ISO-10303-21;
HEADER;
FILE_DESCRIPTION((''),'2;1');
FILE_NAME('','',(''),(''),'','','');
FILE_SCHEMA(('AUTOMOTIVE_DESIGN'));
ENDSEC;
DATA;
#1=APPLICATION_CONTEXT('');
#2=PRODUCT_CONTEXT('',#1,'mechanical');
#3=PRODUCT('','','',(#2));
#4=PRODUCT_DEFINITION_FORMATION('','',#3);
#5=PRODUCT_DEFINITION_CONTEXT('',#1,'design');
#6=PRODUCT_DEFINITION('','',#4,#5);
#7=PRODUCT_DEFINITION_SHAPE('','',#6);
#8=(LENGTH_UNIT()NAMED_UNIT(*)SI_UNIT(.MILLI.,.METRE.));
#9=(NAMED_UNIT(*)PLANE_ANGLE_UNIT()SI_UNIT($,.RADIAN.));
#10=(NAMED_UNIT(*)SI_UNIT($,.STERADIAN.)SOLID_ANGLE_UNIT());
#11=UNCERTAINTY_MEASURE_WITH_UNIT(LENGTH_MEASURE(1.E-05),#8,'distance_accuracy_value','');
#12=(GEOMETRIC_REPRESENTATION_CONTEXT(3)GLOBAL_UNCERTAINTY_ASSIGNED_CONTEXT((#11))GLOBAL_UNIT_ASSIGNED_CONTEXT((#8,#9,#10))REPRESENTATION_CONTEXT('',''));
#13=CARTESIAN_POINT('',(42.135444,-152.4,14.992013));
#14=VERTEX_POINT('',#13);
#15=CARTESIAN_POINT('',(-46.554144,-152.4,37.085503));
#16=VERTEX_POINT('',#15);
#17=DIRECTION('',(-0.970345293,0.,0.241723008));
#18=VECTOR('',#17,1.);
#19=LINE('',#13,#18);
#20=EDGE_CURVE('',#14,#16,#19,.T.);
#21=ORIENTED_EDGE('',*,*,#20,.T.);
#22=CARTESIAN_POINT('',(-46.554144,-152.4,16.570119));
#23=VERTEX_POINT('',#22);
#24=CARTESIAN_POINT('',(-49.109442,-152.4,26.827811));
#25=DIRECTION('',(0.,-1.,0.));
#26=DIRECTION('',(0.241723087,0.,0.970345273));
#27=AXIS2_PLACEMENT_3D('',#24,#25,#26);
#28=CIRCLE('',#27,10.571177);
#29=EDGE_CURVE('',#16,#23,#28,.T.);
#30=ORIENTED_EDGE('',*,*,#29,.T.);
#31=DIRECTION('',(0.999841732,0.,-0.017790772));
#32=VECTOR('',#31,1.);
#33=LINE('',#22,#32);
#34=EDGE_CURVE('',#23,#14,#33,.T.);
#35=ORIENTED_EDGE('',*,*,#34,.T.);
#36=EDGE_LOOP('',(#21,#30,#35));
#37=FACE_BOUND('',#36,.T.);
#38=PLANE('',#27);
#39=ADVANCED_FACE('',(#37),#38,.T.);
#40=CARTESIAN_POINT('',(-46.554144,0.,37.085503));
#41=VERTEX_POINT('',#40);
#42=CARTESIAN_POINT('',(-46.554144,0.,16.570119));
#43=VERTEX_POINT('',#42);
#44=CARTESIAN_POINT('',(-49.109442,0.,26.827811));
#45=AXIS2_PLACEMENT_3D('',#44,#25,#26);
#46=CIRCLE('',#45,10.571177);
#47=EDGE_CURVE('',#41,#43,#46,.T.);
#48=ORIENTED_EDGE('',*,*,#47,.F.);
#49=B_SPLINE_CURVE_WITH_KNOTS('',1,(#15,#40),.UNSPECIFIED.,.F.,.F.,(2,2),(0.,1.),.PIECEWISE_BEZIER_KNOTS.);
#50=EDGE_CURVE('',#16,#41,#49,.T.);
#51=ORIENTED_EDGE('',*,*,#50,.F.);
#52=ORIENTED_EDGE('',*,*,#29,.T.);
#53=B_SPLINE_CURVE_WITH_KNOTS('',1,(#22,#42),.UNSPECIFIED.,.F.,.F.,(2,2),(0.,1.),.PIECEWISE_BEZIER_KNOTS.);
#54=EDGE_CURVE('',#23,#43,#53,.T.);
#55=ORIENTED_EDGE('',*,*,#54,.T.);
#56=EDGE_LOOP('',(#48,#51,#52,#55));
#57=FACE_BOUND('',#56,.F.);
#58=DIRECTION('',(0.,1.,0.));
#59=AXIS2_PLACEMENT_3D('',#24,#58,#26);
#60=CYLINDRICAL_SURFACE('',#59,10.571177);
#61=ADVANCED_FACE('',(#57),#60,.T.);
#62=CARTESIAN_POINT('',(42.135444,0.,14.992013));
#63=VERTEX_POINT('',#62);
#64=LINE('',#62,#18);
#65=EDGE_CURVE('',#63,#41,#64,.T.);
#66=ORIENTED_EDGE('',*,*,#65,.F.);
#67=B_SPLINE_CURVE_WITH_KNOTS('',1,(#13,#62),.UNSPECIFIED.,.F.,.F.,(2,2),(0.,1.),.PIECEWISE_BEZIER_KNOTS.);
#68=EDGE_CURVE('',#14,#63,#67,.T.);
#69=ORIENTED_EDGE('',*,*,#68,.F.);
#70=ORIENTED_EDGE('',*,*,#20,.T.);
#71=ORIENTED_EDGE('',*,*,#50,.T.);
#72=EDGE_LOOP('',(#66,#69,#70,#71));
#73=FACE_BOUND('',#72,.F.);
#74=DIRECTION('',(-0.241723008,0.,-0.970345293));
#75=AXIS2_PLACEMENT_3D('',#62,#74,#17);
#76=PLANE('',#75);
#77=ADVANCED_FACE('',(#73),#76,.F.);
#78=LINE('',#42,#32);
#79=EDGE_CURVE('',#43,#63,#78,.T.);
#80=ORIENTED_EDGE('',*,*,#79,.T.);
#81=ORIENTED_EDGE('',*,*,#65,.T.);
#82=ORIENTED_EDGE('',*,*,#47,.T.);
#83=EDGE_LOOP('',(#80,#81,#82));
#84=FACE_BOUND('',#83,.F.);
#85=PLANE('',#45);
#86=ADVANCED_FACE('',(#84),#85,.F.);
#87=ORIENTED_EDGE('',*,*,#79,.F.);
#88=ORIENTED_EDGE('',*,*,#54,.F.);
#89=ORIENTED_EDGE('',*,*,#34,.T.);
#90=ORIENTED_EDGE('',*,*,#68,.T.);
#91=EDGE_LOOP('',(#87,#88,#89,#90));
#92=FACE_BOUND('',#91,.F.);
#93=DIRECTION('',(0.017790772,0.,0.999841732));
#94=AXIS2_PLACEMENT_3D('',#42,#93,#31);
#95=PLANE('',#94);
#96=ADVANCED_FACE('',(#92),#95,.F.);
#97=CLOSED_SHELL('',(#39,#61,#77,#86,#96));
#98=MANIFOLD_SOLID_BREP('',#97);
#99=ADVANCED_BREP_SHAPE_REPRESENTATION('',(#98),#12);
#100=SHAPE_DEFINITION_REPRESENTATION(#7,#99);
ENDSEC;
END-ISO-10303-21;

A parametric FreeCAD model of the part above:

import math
import FreeCAD as App
import Part
import Sketcher
from FreeCAD import Vector
Q = App.Units.Quantity

doc = App.newDocument("Part")
body = doc.addObject("PartDesign::Body", "Body")

# Sketch on XZ plane
sketch1 = doc.addObject("Sketcher::SketchObject", "Sketch")
body.addObject(sketch1)
sketch1.AttachmentSupport = (doc.XZ_Plane, [""])
sketch1.MapMode = "FlatFace"
sketch1.AttachmentOffset = App.Placement(Vector(0, 0, 152.4), App.Rotation())
sketch1.addGeometry([
    Part.LineSegment(Vector(42, 15, 0), Vector(-47, 37, 0)),
    Part.ArcOfCircle(Part.Circle(Vector(-49, 27, 0), Vector(0, 0, 1), 11), math.radians(76), math.radians(284)),
    Part.LineSegment(Vector(-47, 17, 0), Vector(42, 15, 0)),
], False)
sketch1.addConstraint([
    Sketcher.Constraint("Tangent", 0, 2, 1, 1),
    Sketcher.Constraint("Coincident", 1, 2, 2, 1),
    Sketcher.Constraint("Coincident", 2, 2, 0, 1),
    Sketcher.Constraint("Vertical", 0, 2, 1, 2),
    Sketcher.Constraint("Radius", 1, Q("10.571177 mm")),
    Sketcher.Constraint("Distance", 0, Q("91.400029 mm")),
    Sketcher.Constraint("DistanceX", 1, 3, -1, 1, Q("49.109442 mm")),
    Sketcher.Constraint("DistanceY", -1, 1, 1, 3, Q("26.827811 mm")),
    Sketcher.Constraint("DistanceY", -1, 1, 1, 2, Q("16.570119 mm")),
])

# Sketch on XZ plane
sketch2 = doc.addObject("Sketcher::SketchObject", "Sketch001")
body.addObject(sketch2)
sketch2.AttachmentSupport = (doc.XZ_Plane, [""])
sketch2.MapMode = "FlatFace"
sketch2.addGeometry([
    Part.LineSegment(Vector(42, 15, 0), Vector(-47, 37, 0)),
    Part.ArcOfCircle(Part.Circle(Vector(-49, 27, 0), Vector(0, 0, 1), 11), math.radians(76), math.radians(284)),
    Part.LineSegment(Vector(-47, 17, 0), Vector(42, 15, 0)),
], False)
sketch2.addConstraint([
    Sketcher.Constraint("Tangent", 0, 2, 1, 1),
    Sketcher.Constraint("Coincident", 1, 2, 2, 1),
    Sketcher.Constraint("Coincident", 2, 2, 0, 1),
    Sketcher.Constraint("Vertical", 0, 2, 1, 2),
    Sketcher.Constraint("Radius", 1, Q("10.571177 mm")),
    Sketcher.Constraint("Distance", 0, Q("91.400029 mm")),
    Sketcher.Constraint("DistanceX", 1, 3, -1, 1, Q("49.109442 mm")),
    Sketcher.Constraint("DistanceY", -1, 1, 1, 3, Q("26.827811 mm")),
    Sketcher.Constraint("DistanceY", -1, 1, 1, 2, Q("16.570119 mm")),
])

additiveloft = doc.addObject("PartDesign::AdditiveLoft", "AdditiveLoft")
body.addObject(additiveloft)
additiveloft.Profile = sketch1
additiveloft.Sections = [sketch2]

doc.recompute()
